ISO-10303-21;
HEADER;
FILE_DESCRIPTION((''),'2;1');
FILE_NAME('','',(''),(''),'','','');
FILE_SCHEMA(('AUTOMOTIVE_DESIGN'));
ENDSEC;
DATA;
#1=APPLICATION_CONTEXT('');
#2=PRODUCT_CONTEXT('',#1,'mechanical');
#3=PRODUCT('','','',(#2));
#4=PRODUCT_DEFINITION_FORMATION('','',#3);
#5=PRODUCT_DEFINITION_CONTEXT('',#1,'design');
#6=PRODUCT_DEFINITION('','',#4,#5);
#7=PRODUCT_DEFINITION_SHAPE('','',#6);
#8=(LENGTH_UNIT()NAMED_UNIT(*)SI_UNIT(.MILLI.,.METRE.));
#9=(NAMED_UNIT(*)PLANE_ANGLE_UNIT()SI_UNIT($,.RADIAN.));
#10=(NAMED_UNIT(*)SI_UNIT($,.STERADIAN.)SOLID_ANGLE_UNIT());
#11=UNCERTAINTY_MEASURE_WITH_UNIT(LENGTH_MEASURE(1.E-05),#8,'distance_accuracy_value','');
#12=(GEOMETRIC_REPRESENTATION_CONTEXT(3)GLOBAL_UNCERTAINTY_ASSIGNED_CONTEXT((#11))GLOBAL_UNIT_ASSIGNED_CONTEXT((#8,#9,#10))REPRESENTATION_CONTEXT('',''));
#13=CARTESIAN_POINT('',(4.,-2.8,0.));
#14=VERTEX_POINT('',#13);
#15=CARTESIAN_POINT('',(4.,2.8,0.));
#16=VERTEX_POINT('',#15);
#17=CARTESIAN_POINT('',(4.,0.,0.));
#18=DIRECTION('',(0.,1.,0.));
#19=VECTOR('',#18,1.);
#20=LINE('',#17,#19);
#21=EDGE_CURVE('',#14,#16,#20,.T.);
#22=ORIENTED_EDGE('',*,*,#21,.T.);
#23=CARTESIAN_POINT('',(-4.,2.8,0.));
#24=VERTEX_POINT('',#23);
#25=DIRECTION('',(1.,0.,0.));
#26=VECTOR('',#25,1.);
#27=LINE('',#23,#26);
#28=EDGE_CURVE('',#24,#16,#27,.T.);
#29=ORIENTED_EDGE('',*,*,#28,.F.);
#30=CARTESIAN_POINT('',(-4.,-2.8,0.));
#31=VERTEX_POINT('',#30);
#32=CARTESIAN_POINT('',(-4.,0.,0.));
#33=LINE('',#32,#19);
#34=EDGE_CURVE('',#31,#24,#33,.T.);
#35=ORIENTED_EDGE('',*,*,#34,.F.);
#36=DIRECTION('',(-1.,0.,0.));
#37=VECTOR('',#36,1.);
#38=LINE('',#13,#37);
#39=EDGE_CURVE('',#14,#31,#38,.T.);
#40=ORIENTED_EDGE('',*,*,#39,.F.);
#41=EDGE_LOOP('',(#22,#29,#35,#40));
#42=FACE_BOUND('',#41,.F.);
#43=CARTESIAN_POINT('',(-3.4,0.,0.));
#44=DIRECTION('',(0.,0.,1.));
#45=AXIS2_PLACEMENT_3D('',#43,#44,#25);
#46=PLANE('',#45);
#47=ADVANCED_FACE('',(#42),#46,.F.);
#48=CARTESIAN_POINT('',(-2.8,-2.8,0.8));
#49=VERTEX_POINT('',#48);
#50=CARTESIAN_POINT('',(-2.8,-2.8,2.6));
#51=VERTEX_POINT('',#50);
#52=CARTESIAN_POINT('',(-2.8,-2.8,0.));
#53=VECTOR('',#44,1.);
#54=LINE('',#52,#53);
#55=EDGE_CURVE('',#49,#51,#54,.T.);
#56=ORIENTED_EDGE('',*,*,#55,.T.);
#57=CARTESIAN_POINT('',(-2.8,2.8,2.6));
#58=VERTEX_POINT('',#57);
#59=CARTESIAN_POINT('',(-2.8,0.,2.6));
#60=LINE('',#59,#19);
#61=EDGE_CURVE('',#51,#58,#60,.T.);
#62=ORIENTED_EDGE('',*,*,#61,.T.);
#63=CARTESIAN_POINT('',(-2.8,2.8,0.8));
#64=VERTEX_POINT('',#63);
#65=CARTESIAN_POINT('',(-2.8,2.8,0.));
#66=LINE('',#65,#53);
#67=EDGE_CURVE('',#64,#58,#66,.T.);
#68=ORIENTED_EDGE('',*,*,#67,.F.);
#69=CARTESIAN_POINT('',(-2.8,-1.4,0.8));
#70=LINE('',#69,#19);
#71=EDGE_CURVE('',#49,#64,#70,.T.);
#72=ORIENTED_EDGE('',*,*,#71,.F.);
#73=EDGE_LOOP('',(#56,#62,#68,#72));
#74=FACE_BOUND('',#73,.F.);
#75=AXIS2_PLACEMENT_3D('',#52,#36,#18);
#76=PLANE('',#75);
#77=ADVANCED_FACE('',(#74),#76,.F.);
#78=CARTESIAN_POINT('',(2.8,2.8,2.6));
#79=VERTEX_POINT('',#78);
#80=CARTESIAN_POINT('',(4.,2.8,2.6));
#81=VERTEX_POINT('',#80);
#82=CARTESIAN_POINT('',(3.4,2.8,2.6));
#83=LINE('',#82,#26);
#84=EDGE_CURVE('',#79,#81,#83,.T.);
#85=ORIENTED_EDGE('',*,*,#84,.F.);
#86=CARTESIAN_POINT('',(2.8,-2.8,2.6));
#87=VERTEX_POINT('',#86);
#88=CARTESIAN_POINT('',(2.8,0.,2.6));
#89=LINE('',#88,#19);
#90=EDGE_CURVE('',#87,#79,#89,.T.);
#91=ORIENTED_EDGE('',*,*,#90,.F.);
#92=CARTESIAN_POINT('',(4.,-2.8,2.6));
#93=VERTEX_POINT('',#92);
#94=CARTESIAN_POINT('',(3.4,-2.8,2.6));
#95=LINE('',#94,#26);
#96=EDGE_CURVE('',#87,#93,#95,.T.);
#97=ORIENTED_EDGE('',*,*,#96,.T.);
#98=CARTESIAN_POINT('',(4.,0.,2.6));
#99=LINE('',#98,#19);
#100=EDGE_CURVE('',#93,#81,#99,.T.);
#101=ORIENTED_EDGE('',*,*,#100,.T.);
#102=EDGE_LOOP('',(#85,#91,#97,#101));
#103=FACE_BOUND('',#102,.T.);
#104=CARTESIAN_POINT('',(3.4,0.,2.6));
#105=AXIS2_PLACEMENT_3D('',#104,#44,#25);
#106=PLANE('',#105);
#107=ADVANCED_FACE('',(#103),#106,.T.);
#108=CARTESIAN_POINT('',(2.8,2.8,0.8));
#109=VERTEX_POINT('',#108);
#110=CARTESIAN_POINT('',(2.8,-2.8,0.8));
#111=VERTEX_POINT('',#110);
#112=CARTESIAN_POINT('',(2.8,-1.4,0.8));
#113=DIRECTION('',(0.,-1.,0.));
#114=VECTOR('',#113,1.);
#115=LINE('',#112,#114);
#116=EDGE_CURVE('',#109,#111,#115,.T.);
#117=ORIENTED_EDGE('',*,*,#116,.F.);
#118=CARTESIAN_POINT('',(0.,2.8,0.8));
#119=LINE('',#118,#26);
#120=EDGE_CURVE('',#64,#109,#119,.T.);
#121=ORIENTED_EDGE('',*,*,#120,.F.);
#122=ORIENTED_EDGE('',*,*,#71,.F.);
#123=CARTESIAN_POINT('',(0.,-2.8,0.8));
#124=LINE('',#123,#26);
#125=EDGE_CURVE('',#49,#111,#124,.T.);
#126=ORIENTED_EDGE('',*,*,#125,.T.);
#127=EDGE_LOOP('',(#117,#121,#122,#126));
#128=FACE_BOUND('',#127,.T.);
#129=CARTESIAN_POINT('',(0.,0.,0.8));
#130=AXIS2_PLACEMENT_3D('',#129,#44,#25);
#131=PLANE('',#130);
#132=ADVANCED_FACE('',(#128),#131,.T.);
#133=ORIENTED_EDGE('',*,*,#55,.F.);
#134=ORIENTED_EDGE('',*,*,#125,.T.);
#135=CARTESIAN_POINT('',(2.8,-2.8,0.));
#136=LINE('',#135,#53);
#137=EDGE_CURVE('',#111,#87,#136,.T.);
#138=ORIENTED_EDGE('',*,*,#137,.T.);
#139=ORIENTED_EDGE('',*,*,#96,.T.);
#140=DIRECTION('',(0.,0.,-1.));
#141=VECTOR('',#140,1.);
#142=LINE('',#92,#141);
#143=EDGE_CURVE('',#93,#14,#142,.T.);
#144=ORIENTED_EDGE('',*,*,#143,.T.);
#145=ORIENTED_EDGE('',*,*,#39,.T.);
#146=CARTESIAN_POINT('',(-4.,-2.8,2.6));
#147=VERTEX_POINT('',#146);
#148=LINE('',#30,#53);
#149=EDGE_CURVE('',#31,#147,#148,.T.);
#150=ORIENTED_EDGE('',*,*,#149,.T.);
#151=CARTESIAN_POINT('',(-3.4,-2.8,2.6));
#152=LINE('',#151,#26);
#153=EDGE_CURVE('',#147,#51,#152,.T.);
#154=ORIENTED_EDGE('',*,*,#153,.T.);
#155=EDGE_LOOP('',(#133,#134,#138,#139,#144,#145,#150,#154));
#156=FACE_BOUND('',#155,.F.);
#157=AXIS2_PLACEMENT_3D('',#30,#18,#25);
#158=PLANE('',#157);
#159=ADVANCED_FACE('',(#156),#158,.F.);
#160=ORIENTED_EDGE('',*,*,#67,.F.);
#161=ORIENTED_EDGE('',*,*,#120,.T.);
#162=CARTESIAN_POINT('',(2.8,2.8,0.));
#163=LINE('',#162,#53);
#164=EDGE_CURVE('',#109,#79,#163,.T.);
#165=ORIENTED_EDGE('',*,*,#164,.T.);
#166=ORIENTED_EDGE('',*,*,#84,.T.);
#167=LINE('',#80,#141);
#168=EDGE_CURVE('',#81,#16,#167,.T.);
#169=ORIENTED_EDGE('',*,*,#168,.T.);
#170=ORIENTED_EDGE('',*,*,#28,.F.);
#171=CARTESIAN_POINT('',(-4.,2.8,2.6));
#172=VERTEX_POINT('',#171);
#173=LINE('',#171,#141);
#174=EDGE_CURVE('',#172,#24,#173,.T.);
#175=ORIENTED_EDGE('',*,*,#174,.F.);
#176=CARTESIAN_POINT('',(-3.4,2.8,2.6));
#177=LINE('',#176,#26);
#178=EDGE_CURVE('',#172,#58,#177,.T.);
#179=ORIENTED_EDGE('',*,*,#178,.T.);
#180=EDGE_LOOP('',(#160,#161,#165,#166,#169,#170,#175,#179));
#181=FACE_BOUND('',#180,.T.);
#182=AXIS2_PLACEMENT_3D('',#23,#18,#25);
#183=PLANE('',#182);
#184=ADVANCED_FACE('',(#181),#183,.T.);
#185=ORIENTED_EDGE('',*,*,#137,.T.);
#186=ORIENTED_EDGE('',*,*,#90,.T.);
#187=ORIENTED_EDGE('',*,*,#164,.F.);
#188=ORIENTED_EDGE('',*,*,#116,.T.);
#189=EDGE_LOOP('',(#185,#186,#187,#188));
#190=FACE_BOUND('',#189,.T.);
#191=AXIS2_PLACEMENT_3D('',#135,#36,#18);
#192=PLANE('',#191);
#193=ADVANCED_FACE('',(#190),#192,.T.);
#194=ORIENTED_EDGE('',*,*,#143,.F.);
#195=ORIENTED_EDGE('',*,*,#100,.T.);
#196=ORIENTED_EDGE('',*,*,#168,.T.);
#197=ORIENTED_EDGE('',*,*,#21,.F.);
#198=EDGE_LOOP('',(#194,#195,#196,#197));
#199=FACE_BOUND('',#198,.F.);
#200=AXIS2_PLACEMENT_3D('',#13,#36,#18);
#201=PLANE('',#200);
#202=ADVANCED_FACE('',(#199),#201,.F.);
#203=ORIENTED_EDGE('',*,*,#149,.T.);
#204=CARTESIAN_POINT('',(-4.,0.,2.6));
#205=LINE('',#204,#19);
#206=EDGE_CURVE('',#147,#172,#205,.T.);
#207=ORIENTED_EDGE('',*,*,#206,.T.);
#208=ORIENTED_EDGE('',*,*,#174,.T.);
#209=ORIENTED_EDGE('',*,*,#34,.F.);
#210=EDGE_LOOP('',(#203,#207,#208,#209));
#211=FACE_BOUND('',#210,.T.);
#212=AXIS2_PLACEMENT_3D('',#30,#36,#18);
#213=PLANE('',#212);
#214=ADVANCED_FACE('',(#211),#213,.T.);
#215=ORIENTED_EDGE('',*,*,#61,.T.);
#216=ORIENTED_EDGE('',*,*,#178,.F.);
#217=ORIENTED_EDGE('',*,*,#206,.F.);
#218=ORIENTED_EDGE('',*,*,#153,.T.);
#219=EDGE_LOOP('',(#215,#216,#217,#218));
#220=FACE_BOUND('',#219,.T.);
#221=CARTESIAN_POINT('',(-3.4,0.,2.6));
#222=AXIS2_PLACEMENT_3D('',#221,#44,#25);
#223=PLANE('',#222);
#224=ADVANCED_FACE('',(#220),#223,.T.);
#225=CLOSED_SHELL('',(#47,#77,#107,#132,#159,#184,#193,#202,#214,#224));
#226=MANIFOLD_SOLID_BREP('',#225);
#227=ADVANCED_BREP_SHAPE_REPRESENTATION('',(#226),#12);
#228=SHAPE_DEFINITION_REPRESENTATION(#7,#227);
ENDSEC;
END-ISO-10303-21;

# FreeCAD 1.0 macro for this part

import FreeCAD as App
import Part
import Sketcher
from FreeCAD import Vector


def add_polygon(sketch, points):
    """Adds a closed chain of lines whose ends are joined by coincident constraints."""
    first, n = sketch.GeometryCount, len(points)
    for a, b in zip(points, points[1:] + points[:1]):
        sketch.addGeometry(Part.LineSegment(App.Vector(*a, 0), App.Vector(*b, 0)), False)
    for i in range(n):
        sketch.addConstraint(Sketcher.Constraint("Coincident", first + i, 2, first + (i + 1) % n, 1))

doc = App.newDocument("Part")
body = doc.addObject("PartDesign::Body", "Body")

# Sketch on XY plane
sketch1 = body.newObject("Sketcher::SketchObject", "Sketch")
sketch1.AttachmentSupport = (doc.getObject("XY_Plane"), [""])
sketch1.MapMode = "FlatFace"
add_polygon(sketch1, [(-4, 3), (-4, -3), (4, -3), (4, 3)])  # lines 0-3
sketch1.addConstraint([
    Sketcher.Constraint("Vertical", 0),
    Sketcher.Constraint("Horizontal", 1),
    Sketcher.Constraint("Vertical", 2),
    Sketcher.Constraint("Horizontal", 3),
    Sketcher.Constraint("Symmetric", 0, 2, 2, 2, -1, 1),
    Sketcher.Constraint("DistanceX", 1, 1, 1, 2, 8.0),
    Sketcher.Constraint("DistanceY", 0, 2, 0, 1, 5.6),
])
pad1 = body.newObject("PartDesign::Pad", "Pad")
pad1.Profile = sketch1
pad1.Length = 0.8
body2 = doc.addObject("PartDesign::Body", "Body001")

# Sketch on XY plane
sketch2 = body2.newObject("Sketcher::SketchObject", "Sketch001")
sketch2.AttachmentSupport = (doc.getObject("XY_Plane001"), [""])
sketch2.MapMode = "FlatFace"
add_polygon(sketch2, [(2.8, 2.8), (2.8, -2.8), (4, -2.8), (4, 2.8)])  # lines 0-3
sketch2.addConstraint([
    Sketcher.Constraint("Vertical", 0),
    Sketcher.Constraint("Horizontal", 1),
    Sketcher.Constraint("Vertical", 2),
    Sketcher.Constraint("Horizontal", 3),
    Sketcher.Constraint("DistanceX", 1, 1, 1, 2, 1.2),
    Sketcher.Constraint("DistanceY", 0, 2, 0, 1, 5.6),
    Sketcher.Constraint("DistanceX", -1, 1, 1, 2, 4.0),
    Sketcher.Constraint("DistanceY", 0, 2, -1, 1, 2.8),
])
pad2 = body2.newObject("PartDesign::Pad", "Pad001")
pad2.Profile = sketch2
pad2.Length = 2.6
body3 = doc.addObject("PartDesign::Body", "Body002")

# Sketch on XY plane
sketch3 = body3.newObject("Sketcher::SketchObject", "Sketch002")
sketch3.AttachmentSupport = (doc.getObject("XY_Plane002"), [""])
sketch3.MapMode = "FlatFace"
add_polygon(sketch3, [(-4, 2.8), (-4, -2.8), (-2.8, -2.8), (-2.8, 2.8)])  # lines 0-3
sketch3.addConstraint([
    Sketcher.Constraint("Vertical", 0),
    Sketcher.Constraint("Horizontal", 1),
    Sketcher.Constraint("Vertical", 2),
    Sketcher.Constraint("Horizontal", 3),
    Sketcher.Constraint("DistanceX", 1, 1, 1, 2, 1.2),
    Sketcher.Constraint("DistanceY", 0, 2, 0, 1, 5.6),
    Sketcher.Constraint("DistanceX", 0, 2, -1, 1, 4.0),
    Sketcher.Constraint("DistanceY", 0, 2, -1, 1, 2.8),
])
pad3 = body3.newObject("PartDesign::Pad", "Pad002")
pad3.Profile = sketch3
pad3.Length = 2.6
doc.recompute()

boolean = body3.newObject("PartDesign::Boolean", "Boolean")
boolean.Type = "Fuse"
boolean.addObjects([body])
doc.recompute()

boolean2 = body3.newObject("PartDesign::Boolean", "Boolean001")
boolean2.Type = "Fuse"
boolean2.addObjects([body2])

doc.recompute()
